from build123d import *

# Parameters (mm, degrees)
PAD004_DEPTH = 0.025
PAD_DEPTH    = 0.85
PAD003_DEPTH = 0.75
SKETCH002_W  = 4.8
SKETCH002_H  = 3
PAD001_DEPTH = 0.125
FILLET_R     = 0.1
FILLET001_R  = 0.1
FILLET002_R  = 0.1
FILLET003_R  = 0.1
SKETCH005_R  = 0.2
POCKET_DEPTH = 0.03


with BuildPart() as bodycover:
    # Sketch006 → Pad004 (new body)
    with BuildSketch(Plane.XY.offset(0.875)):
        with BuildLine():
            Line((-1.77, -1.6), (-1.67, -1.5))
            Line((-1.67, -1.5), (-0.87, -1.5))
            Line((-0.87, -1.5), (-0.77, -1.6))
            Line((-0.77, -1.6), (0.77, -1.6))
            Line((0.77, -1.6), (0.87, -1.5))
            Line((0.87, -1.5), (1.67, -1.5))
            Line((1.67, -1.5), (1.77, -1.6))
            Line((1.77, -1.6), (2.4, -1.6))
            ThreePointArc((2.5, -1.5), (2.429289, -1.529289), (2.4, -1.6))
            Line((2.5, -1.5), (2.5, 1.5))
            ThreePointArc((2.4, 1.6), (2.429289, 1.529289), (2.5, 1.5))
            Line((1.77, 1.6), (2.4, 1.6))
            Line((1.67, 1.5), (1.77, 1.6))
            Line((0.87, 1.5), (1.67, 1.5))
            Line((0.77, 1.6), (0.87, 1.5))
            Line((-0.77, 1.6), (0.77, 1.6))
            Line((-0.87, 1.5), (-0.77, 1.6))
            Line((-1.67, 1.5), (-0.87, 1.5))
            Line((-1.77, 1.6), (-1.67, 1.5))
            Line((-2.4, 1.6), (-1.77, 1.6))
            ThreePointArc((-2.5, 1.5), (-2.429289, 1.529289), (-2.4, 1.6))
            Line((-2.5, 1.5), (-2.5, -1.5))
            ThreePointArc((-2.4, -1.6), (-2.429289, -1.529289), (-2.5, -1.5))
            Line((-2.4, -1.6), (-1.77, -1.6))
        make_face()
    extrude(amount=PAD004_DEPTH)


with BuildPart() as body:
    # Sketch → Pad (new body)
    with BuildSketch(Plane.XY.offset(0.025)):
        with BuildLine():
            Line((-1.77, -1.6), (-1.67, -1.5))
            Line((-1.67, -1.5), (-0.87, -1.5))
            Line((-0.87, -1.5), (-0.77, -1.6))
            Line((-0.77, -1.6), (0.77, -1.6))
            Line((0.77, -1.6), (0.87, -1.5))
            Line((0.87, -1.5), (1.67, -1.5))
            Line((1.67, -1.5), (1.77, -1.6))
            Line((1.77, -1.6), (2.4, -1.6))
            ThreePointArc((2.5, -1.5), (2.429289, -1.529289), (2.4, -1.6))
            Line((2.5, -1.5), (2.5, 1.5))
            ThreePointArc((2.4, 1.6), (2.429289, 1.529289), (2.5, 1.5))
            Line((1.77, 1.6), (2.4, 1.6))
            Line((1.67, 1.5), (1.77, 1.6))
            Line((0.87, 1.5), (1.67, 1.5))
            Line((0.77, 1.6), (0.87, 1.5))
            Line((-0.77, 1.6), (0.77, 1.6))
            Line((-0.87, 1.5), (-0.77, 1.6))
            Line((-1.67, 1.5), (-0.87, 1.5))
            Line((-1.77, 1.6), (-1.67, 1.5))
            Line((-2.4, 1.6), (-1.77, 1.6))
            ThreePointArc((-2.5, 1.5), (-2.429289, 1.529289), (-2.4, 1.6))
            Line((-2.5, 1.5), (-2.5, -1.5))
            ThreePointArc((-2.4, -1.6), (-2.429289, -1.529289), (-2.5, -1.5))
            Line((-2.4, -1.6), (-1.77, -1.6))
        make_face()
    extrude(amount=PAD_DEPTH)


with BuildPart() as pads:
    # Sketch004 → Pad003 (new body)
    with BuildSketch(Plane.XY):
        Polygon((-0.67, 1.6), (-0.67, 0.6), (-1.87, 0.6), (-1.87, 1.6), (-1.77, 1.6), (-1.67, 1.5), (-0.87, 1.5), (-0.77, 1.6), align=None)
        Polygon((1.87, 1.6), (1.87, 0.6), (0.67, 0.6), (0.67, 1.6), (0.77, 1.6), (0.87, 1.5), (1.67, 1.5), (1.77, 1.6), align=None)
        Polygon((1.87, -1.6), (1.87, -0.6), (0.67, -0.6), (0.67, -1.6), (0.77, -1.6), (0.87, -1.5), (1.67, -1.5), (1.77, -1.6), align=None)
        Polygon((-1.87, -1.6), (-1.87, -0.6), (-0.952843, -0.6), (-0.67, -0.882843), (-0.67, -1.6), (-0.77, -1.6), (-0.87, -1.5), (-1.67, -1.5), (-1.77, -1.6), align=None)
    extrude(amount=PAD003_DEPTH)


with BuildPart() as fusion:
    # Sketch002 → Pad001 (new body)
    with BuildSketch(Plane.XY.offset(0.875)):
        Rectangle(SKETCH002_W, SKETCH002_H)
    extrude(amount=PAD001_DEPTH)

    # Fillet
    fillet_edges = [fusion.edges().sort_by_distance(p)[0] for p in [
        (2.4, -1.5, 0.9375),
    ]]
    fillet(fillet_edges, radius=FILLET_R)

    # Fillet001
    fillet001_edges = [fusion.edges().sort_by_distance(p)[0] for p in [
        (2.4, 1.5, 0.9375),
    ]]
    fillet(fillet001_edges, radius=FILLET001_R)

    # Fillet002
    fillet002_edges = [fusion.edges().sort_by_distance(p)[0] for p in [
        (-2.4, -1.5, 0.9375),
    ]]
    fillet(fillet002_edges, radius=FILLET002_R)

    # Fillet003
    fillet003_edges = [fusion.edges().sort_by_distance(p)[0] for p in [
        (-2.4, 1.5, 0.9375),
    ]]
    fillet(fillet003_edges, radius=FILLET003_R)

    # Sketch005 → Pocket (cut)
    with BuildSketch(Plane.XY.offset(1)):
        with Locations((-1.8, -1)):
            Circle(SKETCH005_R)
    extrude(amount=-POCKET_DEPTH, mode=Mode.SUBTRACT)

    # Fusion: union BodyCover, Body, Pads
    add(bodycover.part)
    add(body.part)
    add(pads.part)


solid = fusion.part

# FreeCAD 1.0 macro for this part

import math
import FreeCAD as App
import Part
import Sketcher
from FreeCAD import Vector


def edges_at(feature, points):
    """Names of the edges that pass closest to the given points."""
    edges = feature.Shape.Edges
    near = lambda p: min(range(len(edges)), key=lambda i: edges[i].distToShape(Part.Vertex(*p))[0])
    return sorted({f"Edge{near(p) + 1}" for p in points})

doc = App.newDocument("Part")
body = doc.addObject("PartDesign::Body", "Body")

sketch1 = body.newObject("Sketcher::SketchObject", "Sketch")
sketch1.AttachmentSupport = (doc.getObject("XY_Plane"), [""])
sketch1.MapMode = "FlatFace"
sketch1.AttachmentOffset = App.Placement(Vector(0, 0, 0.875), App.Rotation())
sketch1.addGeometry([
    Part.LineSegment(Vector(-1.77, -1.6, 0), Vector(-1.67, -1.5, 0)),
    Part.LineSegment(Vector(-1.67, -1.5, 0), Vector(-0.87, -1.5, 0)),
    Part.LineSegment(Vector(-0.87, -1.5, 0), Vector(-0.77, -1.6, 0)),
    Part.LineSegment(Vector(-0.77, -1.6, 0), Vector(0.77, -1.6, 0)),
    Part.LineSegment(Vector(0.77, -1.6, 0), Vector(0.87, -1.5, 0)),
    Part.LineSegment(Vector(0.87, -1.5, 0), Vector(1.67, -1.5, 0)),
    Part.LineSegment(Vector(1.67, -1.5, 0), Vector(1.77, -1.6, 0)),
    Part.LineSegment(Vector(1.77, -1.6, 0), Vector(2.4, -1.6, 0)),
    Part.ArcOfCircle(Part.Circle(Vector(2.499999, -1.599999, 0), Vector(0, 0, 1), 0.099999), math.radians(89.99937), math.radians(180.00063)),
    Part.LineSegment(Vector(2.5, -1.5, 0), Vector(2.5, 1.5, 0)),
    Part.ArcOfCircle(Part.Circle(Vector(2.499999, 1.599999, 0), Vector(0, 0, 1), 0.099999), math.radians(179.99937), math.radians(270.00063)),
    Part.LineSegment(Vector(2.4, 1.6, 0), Vector(1.77, 1.6, 0)),
    Part.LineSegment(Vector(1.77, 1.6, 0), Vector(1.67, 1.5, 0)),
    Part.LineSegment(Vector(1.67, 1.5, 0), Vector(0.87, 1.5, 0)),
    Part.LineSegment(Vector(0.87, 1.5, 0), Vector(0.77, 1.6, 0)),
    Part.LineSegment(Vector(0.77, 1.6, 0), Vector(-0.77, 1.6, 0)),
    Part.LineSegment(Vector(-0.77, 1.6, 0), Vector(-0.87, 1.5, 0)),
    Part.LineSegment(Vector(-0.87, 1.5, 0), Vector(-1.67, 1.5, 0)),
    Part.LineSegment(Vector(-1.67, 1.5, 0), Vector(-1.77, 1.6, 0)),
    Part.LineSegment(Vector(-1.77, 1.6, 0), Vector(-2.4, 1.6, 0)),
    Part.ArcOfCircle(Part.Circle(Vector(-2.499999, 1.599999, 0), Vector(0, 0, 1), 0.099999), math.radians(-90.00063), math.radians(0.00063)),
    Part.LineSegment(Vector(-2.5, 1.5, 0), Vector(-2.5, -1.5, 0)),
    Part.ArcOfCircle(Part.Circle(Vector(-2.499999, -1.599999, 0), Vector(0, 0, 1), 0.099999), math.radians(-0.00063), math.radians(90.00063)),
    Part.LineSegment(Vector(-2.4, -1.6, 0), Vector(-1.77, -1.6, 0)),
], False)
sketch1.addConstraint([
    Sketcher.Constraint("Coincident", 0, 2, 1, 1),
    Sketcher.Constraint("Coincident", 1, 2, 2, 1),
    Sketcher.Constraint("Coincident", 2, 2, 3, 1),
    Sketcher.Constraint("Coincident", 3, 2, 4, 1),
    Sketcher.Constraint("Coincident", 4, 2, 5, 1),
    Sketcher.Constraint("Coincident", 5, 2, 6, 1),
    Sketcher.Constraint("Coincident", 6, 2, 7, 1),
    Sketcher.Constraint("Coincident", 7, 2, 8, 2),
    Sketcher.Constraint("Coincident", 8, 1, 9, 1),
    Sketcher.Constraint("Coincident", 9, 2, 10, 2),
    Sketcher.Constraint("Coincident", 10, 1, 11, 1),
    Sketcher.Constraint("Coincident", 11, 2, 12, 1),
    Sketcher.Constraint("Coincident", 12, 2, 13, 1),
    Sketcher.Constraint("Coincident", 13, 2, 14, 1),
    Sketcher.Constraint("Coincident", 14, 2, 15, 1),
    Sketcher.Constraint("Coincident", 15, 2, 16, 1),
    Sketcher.Constraint("Coincident", 16, 2, 17, 1),
    Sketcher.Constraint("Coincident", 17, 2, 18, 1),
    Sketcher.Constraint("Coincident", 18, 2, 19, 1),
    Sketcher.Constraint("Coincident", 19, 2, 20, 2),
    Sketcher.Constraint("Coincident", 20, 1, 21, 1),
    Sketcher.Constraint("Coincident", 21, 2, 22, 2),
    Sketcher.Constraint("Coincident", 22, 1, 23, 1),
    Sketcher.Constraint("Coincident", 23, 2, 0, 1),
    Sketcher.Constraint("Horizontal", 1),
    Sketcher.Constraint("Horizontal", 3),
    Sketcher.Constraint("Horizontal", 5),
    Sketcher.Constraint("Horizontal", 7),
    Sketcher.Constraint("Vertical", 9),
    Sketcher.Constraint("Horizontal", 11),
    Sketcher.Constraint("Horizontal", 13),
    Sketcher.Constraint("Horizontal", 15),
    Sketcher.Constraint("Horizontal", 17),
    Sketcher.Constraint("Horizontal", 19),
    Sketcher.Constraint("Vertical", 21),
    Sketcher.Constraint("Horizontal", 23),
    Sketcher.Constraint("Equal", 8, 10),
    Sketcher.Constraint("Equal", 10, 20),
    Sketcher.Constraint("Equal", 20, 22),
    Sketcher.Constraint("Symmetric", 8, 3, 20, 3, -1, 1),
    Sketcher.Constraint("Symmetric", 10, 3, 22, 3, -1, 1),
    Sketcher.Constraint("Symmetric", 0, 2, 12, 2, -1, 1),
    Sketcher.Constraint("Symmetric", 2, 2, 14, 2, -1, 1),
    Sketcher.Constraint("Symmetric", 4, 2, 16, 2, -1, 1),
    Sketcher.Constraint("Symmetric", 6, 2, 18, 2, -1, 1),
    Sketcher.Constraint("Symmetric", 11, 2, 23, 2, -1, 1),
    Sketcher.Constraint("Symmetric", 10, 3, 20, 3, -2),
    Sketcher.Constraint("Symmetric", 1, 2, 4, 2, -2),
    Sketcher.Constraint("Symmetric", 11, 2, 18, 2, -2),
    Sketcher.Constraint("Perpendicular", 0, 2),
    Sketcher.Constraint("Perpendicular", 2, 4),
    Sketcher.Constraint("Perpendicular", 4, 6),
    Sketcher.Constraint("Perpendicular", 12, 14),
    Sketcher.Constraint("Perpendicular", 14, 16),
    Sketcher.Constraint("Perpendicular", 16, 18),
    Sketcher.Constraint("Horizontal", 22, 3, 2, 2),
    Sketcher.Constraint("Horizontal", 3, 2, 6, 2),
    Sketcher.Constraint("Horizontal", 5, 2, 8, 1),
    Sketcher.Constraint("Vertical", 10, 3, 8, 1),
    Sketcher.Constraint("Vertical", 5, 2, 12, 2),
    Sketcher.Constraint("Vertical", 22, 3, 20, 1),
    Sketcher.Constraint("Radius", 8, 0.099999),
    Sketcher.Constraint("DistanceY", 9, 1, 9, 2, 3.0),
    Sketcher.Constraint("DistanceX", 1, 1, 1, 2, 0.8),
    Sketcher.Constraint("DistanceX", 3, 1, 3, 2, 1.54),
    Sketcher.Constraint("DistanceX", 7, 1, 7, 2, 0.63),
])
pad1 = body.newObject("PartDesign::Pad", "Pad")
pad1.Profile = sketch1
pad1.Length = 0.025
body2 = doc.addObject("PartDesign::Body", "Body001")

sketch2 = body2.newObject("Sketcher::SketchObject", "Sketch001")
sketch2.AttachmentSupport = (doc.getObject("XY_Plane001"), [""])
sketch2.MapMode = "FlatFace"
sketch2.AttachmentOffset = App.Placement(Vector(0, 0, 0.025), App.Rotation())
sketch2.addGeometry([
    Part.LineSegment(Vector(-1.77, -1.6, 0), Vector(-1.67, -1.5, 0)),
    Part.LineSegment(Vector(-1.67, -1.5, 0), Vector(-0.87, -1.5, 0)),
    Part.LineSegment(Vector(-0.87, -1.5, 0), Vector(-0.77, -1.6, 0)),
    Part.LineSegment(Vector(-0.77, -1.6, 0), Vector(0.77, -1.6, 0)),
    Part.LineSegment(Vector(0.77, -1.6, 0), Vector(0.87, -1.5, 0)),
    Part.LineSegment(Vector(0.87, -1.5, 0), Vector(1.67, -1.5, 0)),
    Part.LineSegment(Vector(1.67, -1.5, 0), Vector(1.77, -1.6, 0)),
    Part.LineSegment(Vector(1.77, -1.6, 0), Vector(2.4, -1.6, 0)),
    Part.ArcOfCircle(Part.Circle(Vector(2.499999, -1.599999, 0), Vector(0, 0, 1), 0.099999), math.radians(89.99937), math.radians(180.00063)),
    Part.LineSegment(Vector(2.5, -1.5, 0), Vector(2.5, 1.5, 0)),
    Part.ArcOfCircle(Part.Circle(Vector(2.499999, 1.599999, 0), Vector(0, 0, 1), 0.099999), math.radians(179.99937), math.radians(270.00063)),
    Part.LineSegment(Vector(2.4, 1.6, 0), Vector(1.77, 1.6, 0)),
    Part.LineSegment(Vector(1.77, 1.6, 0), Vector(1.67, 1.5, 0)),
    Part.LineSegment(Vector(1.67, 1.5, 0), Vector(0.87, 1.5, 0)),
    Part.LineSegment(Vector(0.87, 1.5, 0), Vector(0.77, 1.6, 0)),
    Part.LineSegment(Vector(0.77, 1.6, 0), Vector(-0.77, 1.6, 0)),
    Part.LineSegment(Vector(-0.77, 1.6, 0), Vector(-0.87, 1.5, 0)),
    Part.LineSegment(Vector(-0.87, 1.5, 0), Vector(-1.67, 1.5, 0)),
    Part.LineSegment(Vector(-1.67, 1.5, 0), Vector(-1.77, 1.6, 0)),
    Part.LineSegment(Vector(-1.77, 1.6, 0), Vector(-2.4, 1.6, 0)),
    Part.ArcOfCircle(Part.Circle(Vector(-2.499999, 1.599999, 0), Vector(0, 0, 1), 0.099999), math.radians(-90.00063), math.radians(0.00063)),
    Part.LineSegment(Vector(-2.5, 1.5, 0), Vector(-2.5, -1.5, 0)),
    Part.ArcOfCircle(Part.Circle(Vector(-2.499999, -1.599999, 0), Vector(0, 0, 1), 0.099999), math.radians(-0.00063), math.radians(90.00063)),
    Part.LineSegment(Vector(-2.4, -1.6, 0), Vector(-1.77, -1.6, 0)),
], False)
sketch2.addConstraint([
    Sketcher.Constraint("Coincident", 0, 2, 1, 1),
    Sketcher.Constraint("Coincident", 1, 2, 2, 1),
    Sketcher.Constraint("Coincident", 2, 2, 3, 1),
    Sketcher.Constraint("Coincident", 3, 2, 4, 1),
    Sketcher.Constraint("Coincident", 4, 2, 5, 1),
    Sketcher.Constraint("Coincident", 5, 2, 6, 1),
    Sketcher.Constraint("Coincident", 6, 2, 7, 1),
    Sketcher.Constraint("Coincident", 7, 2, 8, 2),
    Sketcher.Constraint("Coincident", 8, 1, 9, 1),
    Sketcher.Constraint("Coincident", 9, 2, 10, 2),
    Sketcher.Constraint("Coincident", 10, 1, 11, 1),
    Sketcher.Constraint("Coincident", 11, 2, 12, 1),
    Sketcher.Constraint("Coincident", 12, 2, 13, 1),
    Sketcher.Constraint("Coincident", 13, 2, 14, 1),
    Sketcher.Constraint("Coincident", 14, 2, 15, 1),
    Sketcher.Constraint("Coincident", 15, 2, 16, 1),
    Sketcher.Constraint("Coincident", 16, 2, 17, 1),
    Sketcher.Constraint("Coincident", 17, 2, 18, 1),
    Sketcher.Constraint("Coincident", 18, 2, 19, 1),
    Sketcher.Constraint("Coincident", 19, 2, 20, 2),
    Sketcher.Constraint("Coincident", 20, 1, 21, 1),
    Sketcher.Constraint("Coincident", 21, 2, 22, 2),
    Sketcher.Constraint("Coincident", 22, 1, 23, 1),
    Sketcher.Constraint("Coincident", 23, 2, 0, 1),
    Sketcher.Constraint("Horizontal", 1),
    Sketcher.Constraint("Horizontal", 3),
    Sketcher.Constraint("Horizontal", 5),
    Sketcher.Constraint("Horizontal", 7),
    Sketcher.Constraint("Vertical", 9),
    Sketcher.Constraint("Horizontal", 11),
    Sketcher.Constraint("Horizontal", 13),
    Sketcher.Constraint("Horizontal", 15),
    Sketcher.Constraint("Horizontal", 17),
    Sketcher.Constraint("Horizontal", 19),
    Sketcher.Constraint("Vertical", 21),
    Sketcher.Constraint("Horizontal", 23),
    Sketcher.Constraint("Equal", 8, 10),
    Sketcher.Constraint("Equal", 10, 20),
    Sketcher.Constraint("Equal", 20, 22),
    Sketcher.Constraint("Symmetric", 8, 3, 20, 3, -1, 1),
    Sketcher.Constraint("Symmetric", 10, 3, 22, 3, -1, 1),
    Sketcher.Constraint("Symmetric", 0, 2, 12, 2, -1, 1),
    Sketcher.Constraint("Symmetric", 2, 2, 14, 2, -1, 1),
    Sketcher.Constraint("Symmetric", 4, 2, 16, 2, -1, 1),
    Sketcher.Constraint("Symmetric", 6, 2, 18, 2, -1, 1),
    Sketcher.Constraint("Symmetric", 11, 2, 23, 2, -1, 1),
    Sketcher.Constraint("Symmetric", 10, 3, 20, 3, -2),
    Sketcher.Constraint("Symmetric", 1, 2, 4, 2, -2),
    Sketcher.Constraint("Symmetric", 11, 2, 18, 2, -2),
    Sketcher.Constraint("Perpendicular", 0, 2),
    Sketcher.Constraint("Perpendicular", 2, 4),
    Sketcher.Constraint("Perpendicular", 4, 6),
    Sketcher.Constraint("Perpendicular", 12, 14),
    Sketcher.Constraint("Perpendicular", 14, 16),
    Sketcher.Constraint("Perpendicular", 16, 18),
    Sketcher.Constraint("Horizontal", 22, 3, 2, 2),
    Sketcher.Constraint("Horizontal", 3, 2, 6, 2),
    Sketcher.Constraint("Horizontal", 5, 2, 8, 1),
    Sketcher.Constraint("Vertical", 10, 3, 8, 1),
    Sketcher.Constraint("Vertical", 5, 2, 12, 2),
    Sketcher.Constraint("Vertical", 22, 3, 20, 1),
    Sketcher.Constraint("Radius", 8, 0.099999),
    Sketcher.Constraint("DistanceY", 9, 1, 9, 2, 3.0),
    Sketcher.Constraint("DistanceX", 1, 1, 1, 2, 0.8),
    Sketcher.Constraint("DistanceX", 3, 1, 3, 2, 1.54),
    Sketcher.Constraint("DistanceX", 7, 1, 7, 2, 0.63),
])
pad2 = body2.newObject("PartDesign::Pad", "Pad001")
pad2.Profile = sketch2
pad2.Length = 0.85
body3 = doc.addObject("PartDesign::Body", "Body002")
body3.AllowCompound = True

sketch3 = body3.newObject("Sketcher::SketchObject", "Sketch002")
sketch3.AttachmentSupport = (doc.getObject("XY_Plane002"), [""])
sketch3.MapMode = "FlatFace"
sketch3.addGeometry([
    Part.LineSegment(Vector(-0.67, 0.6, 0), Vector(-0.67, 1.6, 0)),
    Part.LineSegment(Vector(-0.67, 1.6, 0), Vector(-0.77, 1.6, 0)),
    Part.LineSegment(Vector(-0.77, 1.6, 0), Vector(-0.87, 1.5, 0)),
    Part.LineSegment(Vector(-0.87, 1.5, 0), Vector(-1.67, 1.5, 0)),
    Part.LineSegment(Vector(-1.67, 1.5, 0), Vector(-1.77, 1.6, 0)),
    Part.LineSegment(Vector(-1.77, 1.6, 0), Vector(-1.87, 1.6, 0)),
    Part.LineSegment(Vector(-1.87, 1.6, 0), Vector(-1.87, 0.6, 0)),
    Part.LineSegment(Vector(-1.87, 0.6, 0), Vector(-0.67, 0.6, 0)),
    Part.LineSegment(Vector(1.87, 0.6, 0), Vector(1.87, 1.6, 0)),
    Part.LineSegment(Vector(1.87, 1.6, 0), Vector(1.77, 1.6, 0)),
    Part.LineSegment(Vector(1.77, 1.6, 0), Vector(1.67, 1.5, 0)),
    Part.LineSegment(Vector(1.67, 1.5, 0), Vector(0.87, 1.5, 0)),
    Part.LineSegment(Vector(0.87, 1.5, 0), Vector(0.77, 1.6, 0)),
    Part.LineSegment(Vector(0.77, 1.6, 0), Vector(0.67, 1.6, 0)),
    Part.LineSegment(Vector(0.67, 1.6, 0), Vector(0.67, 0.6, 0)),
    Part.LineSegment(Vector(0.67, 0.6, 0), Vector(1.87, 0.6, 0)),
    Part.LineSegment(Vector(1.87, -1.6, 0), Vector(1.87, -0.6, 0)),
    Part.LineSegment(Vector(1.87, -0.6, 0), Vector(0.67, -0.6, 0)),
    Part.LineSegment(Vector(0.67, -0.6, 0), Vector(0.67, -1.6, 0)),
    Part.LineSegment(Vector(0.67, -1.6, 0), Vector(0.77, -1.6, 0)),
    Part.LineSegment(Vector(0.77, -1.6, 0), Vector(0.87, -1.5, 0)),
    Part.LineSegment(Vector(0.87, -1.5, 0), Vector(1.67, -1.5, 0)),
    Part.LineSegment(Vector(1.67, -1.5, 0), Vector(1.77, -1.6, 0)),
    Part.LineSegment(Vector(1.77, -1.6, 0), Vector(1.87, -1.6, 0)),
    Part.LineSegment(Vector(-1.87, -0.6, 0), Vector(-1.87, -1.6, 0)),
    Part.LineSegment(Vector(-1.87, -1.6, 0), Vector(-1.77, -1.6, 0)),
    Part.LineSegment(Vector(-1.77, -1.6, 0), Vector(-1.67, -1.5, 0)),
    Part.LineSegment(Vector(-1.67, -1.5, 0), Vector(-0.87, -1.5, 0)),
    Part.LineSegment(Vector(-0.87, -1.5, 0), Vector(-0.77, -1.6, 0)),
    Part.LineSegment(Vector(-0.77, -1.6, 0), Vector(-0.67, -1.6, 0)),
    Part.LineSegment(Vector(-0.67, -1.6, 0), Vector(-0.67, -0.882843, 0)),
    Part.LineSegment(Vector(-0.67, -0.882843, 0), Vector(-0.952843, -0.6, 0)),
    Part.LineSegment(Vector(-0.952843, -0.6, 0), Vector(-1.87, -0.6, 0)),
], False)
sketch3.addConstraint([
    Sketcher.Constraint("Coincident", 0, 2, 1, 1),
    Sketcher.Constraint("Coincident", 1, 2, 2, 1),
    Sketcher.Constraint("Coincident", 2, 2, 3, 1),
    Sketcher.Constraint("Coincident", 3, 2, 4, 1),
    Sketcher.Constraint("Coincident", 4, 2, 5, 1),
    Sketcher.Constraint("Coincident", 5, 2, 6, 1),
    Sketcher.Constraint("Coincident", 6, 2, 7, 1),
    Sketcher.Constraint("Coincident", 7, 2, 0, 1),
    Sketcher.Constraint("Coincident", 8, 2, 9, 1),
    Sketcher.Constraint("Coincident", 9, 2, 10, 1),
    Sketcher.Constraint("Coincident", 10, 2, 11, 1),
    Sketcher.Constraint("Coincident", 11, 2, 12, 1),
    Sketcher.Constraint("Coincident", 12, 2, 13, 1),
    Sketcher.Constraint("Coincident", 13, 2, 14, 1),
    Sketcher.Constraint("Coincident", 14, 2, 15, 1),
    Sketcher.Constraint("Coincident", 15, 2, 8, 1),
    Sketcher.Constraint("Coincident", 16, 2, 17, 1),
    Sketcher.Constraint("Coincident", 17, 2, 18, 1),
    Sketcher.Constraint("Coincident", 18, 2, 19, 1),
    Sketcher.Constraint("Coincident", 19, 2, 20, 1),
    Sketcher.Constraint("Coincident", 20, 2, 21, 1),
    Sketcher.Constraint("Coincident", 21, 2, 22, 1),
    Sketcher.Constraint("Coincident", 22, 2, 23, 1),
    Sketcher.Constraint("Coincident", 23, 2, 16, 1),
    Sketcher.Constraint("Coincident", 24, 2, 25, 1),
    Sketcher.Constraint("Coincident", 25, 2, 26, 1),
    Sketcher.Constraint("Coincident", 26, 2, 27, 1),
    Sketcher.Constraint("Coincident", 27, 2, 28, 1),
    Sketcher.Constraint("Coincident", 28, 2, 29, 1),
    Sketcher.Constraint("Coincident", 29, 2, 30, 1),
    Sketcher.Constraint("Coincident", 30, 2, 31, 1),
    Sketcher.Constraint("Coincident", 31, 2, 32, 1),
    Sketcher.Constraint("Coincident", 32, 2, 24, 1),
    Sketcher.Constraint("Vertical", 0),
    Sketcher.Constraint("Horizontal", 1),
    Sketcher.Constraint("Horizontal", 3),
    Sketcher.Constraint("Horizontal", 5),
    Sketcher.Constraint("Vertical", 6),
    Sketcher.Constraint("Horizontal", 7),
    Sketcher.Constraint("Vertical", 8),
    Sketcher.Constraint("Horizontal", 9),
    Sketcher.Constraint("Horizontal", 11),
    Sketcher.Constraint("Horizontal", 13),
    Sketcher.Constraint("Vertical", 14),
    Sketcher.Constraint("Horizontal", 15),
    Sketcher.Constraint("Vertical", 16),
    Sketcher.Constraint("Horizontal", 17),
    Sketcher.Constraint("Vertical", 18),
    Sketcher.Constraint("Horizontal", 19),
    Sketcher.Constraint("Horizontal", 21),
    Sketcher.Constraint("Horizontal", 23),
    Sketcher.Constraint("Vertical", 24),
    Sketcher.Constraint("Horizontal", 25),
    Sketcher.Constraint("Horizontal", 27),
    Sketcher.Constraint("Horizontal", 29),
    Sketcher.Constraint("Vertical", 30),
    Sketcher.Constraint("Horizontal", 32),
    Sketcher.Constraint("Symmetric", 6, 2, 16, 2, -1, 1),
    Sketcher.Constraint("Symmetric", 0, 2, 18, 2, -1, 1),
    Sketcher.Constraint("Symmetric", 2, 2, 20, 2, -1, 1),
    Sketcher.Constraint("Symmetric", 4, 2, 22, 2, -1, 1),
    Sketcher.Constraint("Symmetric", 8, 2, 24, 2, -1, 1),
    Sketcher.Constraint("Symmetric", 10, 2, 26, 2, -1, 1),
    Sketcher.Constraint("Symmetric", 12, 2, 28, 2, -1, 1),
    Sketcher.Constraint("Symmetric", 5, 2, 8, 2, -2),
    Sketcher.Constraint("Symmetric", 3, 2, 10, 2, -2),
    Sketcher.Constraint("Symmetric", 1, 2, 12, 2, -2),
    Sketcher.Constraint("Symmetric", 7, 2, 14, 2, -2),
    Sketcher.Constraint("Perpendicular", 2, 4),
    Sketcher.Constraint("Perpendicular", 4, 10),
    Sketcher.Constraint("Perpendicular", 10, 12),
    Sketcher.Constraint("Perpendicular", 12, 20),
    Sketcher.Constraint("Perpendicular", 20, 22),
    Sketcher.Constraint("Perpendicular", 22, 26),
    Sketcher.Constraint("Perpendicular", 26, 28),
    Sketcher.Constraint("Parallel", 28, 31),
    Sketcher.Constraint("Horizontal", 1, 2, 4, 2),
    Sketcher.Constraint("Horizontal", 17, 2, 31, 2),
    Sketcher.Constraint("Vertical", 11, 2, 20, 2),
    Sketcher.Constraint("Vertical", 7, 2, 29, 2),
    Sketcher.Constraint("Equal", 1, 5),
    Sketcher.Constraint("DistanceY", 0, 1, 0, 2, 1.0),
    Sketcher.Constraint("DistanceX", 1, 2, 1, 1, 0.1),
    Sketcher.Constraint("DistanceX", 3, 2, 3, 1, 0.8),
    Sketcher.Constraint("DistanceX", 7, 1, 7, 2, 1.2),
    Sketcher.Constraint("Distance", 31, 0.4),
    Sketcher.Constraint("DistanceY", -1, 1, 0, 2, 1.6),
    Sketcher.Constraint("DistanceX", 0, 2, -1, 1, 0.67),
])
pad3 = body3.newObject("PartDesign::Pad", "Pad002")
pad3.Profile = sketch3
pad3.Length = 0.75
body4 = doc.addObject("PartDesign::Body", "Body003")

sketch4 = body4.newObject("Sketcher::SketchObject", "Sketch003")
sketch4.AttachmentSupport = (doc.getObject("XY_Plane003"), [""])
sketch4.MapMode = "FlatFace"
sketch4.AttachmentOffset = App.Placement(Vector(0, 0, 0.875), App.Rotation())
sketch4.addGeometry([
    Part.LineSegment(Vector(-2.4, 1.5, 0), Vector(-2.4, -1.5, 0)),
    Part.LineSegment(Vector(-2.4, -1.5, 0), Vector(2.4, -1.5, 0)),
    Part.LineSegment(Vector(2.4, -1.5, 0), Vector(2.4, 1.5, 0)),
    Part.LineSegment(Vector(2.4, 1.5, 0), Vector(-2.4, 1.5, 0)),
], False)
sketch4.addConstraint([
    Sketcher.Constraint("Coincident", 0, 2, 1, 1),
    Sketcher.Constraint("Coincident", 1, 2, 2, 1),
    Sketcher.Constraint("Coincident", 2, 2, 3, 1),
    Sketcher.Constraint("Coincident", 3, 2, 0, 1),
    Sketcher.Constraint("Vertical", 0),
    Sketcher.Constraint("Horizontal", 1),
    Sketcher.Constraint("Vertical", 2),
    Sketcher.Constraint("Horizontal", 3),
    Sketcher.Constraint("Symmetric", 0, 2, 2, 2, -1, 1),
    Sketcher.Constraint("DistanceY", 0, 2, 0, 1, 3.0),
    Sketcher.Constraint("DistanceX", 1, 1, 1, 2, 4.8),
])
pad4 = body4.newObject("PartDesign::Pad", "Pad003")
pad4.Profile = sketch4
pad4.Length = 0.125
doc.recompute()

fillet = body4.newObject("PartDesign::Fillet", "Fillet")
fillet.Base = (pad4, edges_at(pad4, [(2.4, -1.5, 0.938)]))
fillet.Radius = 0.1
doc.recompute()

fillet2 = body4.newObject("PartDesign::Fillet", "Fillet001")
fillet2.Base = (fillet, edges_at(fillet, [(2.4, 1.5, 0.938)]))
fillet2.Radius = 0.1
doc.recompute()

fillet3 = body4.newObject("PartDesign::Fillet", "Fillet002")
fillet3.Base = (fillet2, edges_at(fillet2, [(-2.4, -1.5, 0.938)]))
fillet3.Radius = 0.1
doc.recompute()

fillet4 = body4.newObject("PartDesign::Fillet", "Fillet003")
fillet4.Base = (fillet3, edges_at(fillet3, [(-2.4, 1.5, 0.938)]))
fillet4.Radius = 0.1

sketch5 = body4.newObject("Sketcher::SketchObject", "Sketch004")
sketch5.AttachmentSupport = (doc.getObject("XY_Plane003"), [""])
sketch5.MapMode = "FlatFace"
sketch5.AttachmentOffset = App.Placement(Vector(0, 0, 1), App.Rotation())
sketch5.addGeometry(Part.Circle(Vector(-1.8, -1, 0), Vector(0, 0, 1), 0.2), False)
sketch5.addConstraint([
    Sketcher.Constraint("Diameter", 0, 0.4),
    Sketcher.Constraint("DistanceY", 0, 3, -1, 1, 1.0),
    Sketcher.Constraint("DistanceX", 0, 3, -1, 1, 1.8),
])
pocket1 = body4.newObject("PartDesign::Pocket", "Pocket")
pocket1.Profile = sketch5
pocket1.Length = 0.03
doc.recompute()

boolean = body4.newObject("PartDesign::Boolean", "Boolean")
boolean.Type = "Fuse"
boolean.addObjects([body])
doc.recompute()

boolean2 = body4.newObject("PartDesign::Boolean", "Boolean001")
boolean2.Type = "Fuse"
boolean2.addObjects([body2])
doc.recompute()

boolean3 = body4.newObject("PartDesign::Boolean", "Boolean002")
boolean3.Type = "Fuse"
boolean3.addObjects([body3])

doc.recompute()
